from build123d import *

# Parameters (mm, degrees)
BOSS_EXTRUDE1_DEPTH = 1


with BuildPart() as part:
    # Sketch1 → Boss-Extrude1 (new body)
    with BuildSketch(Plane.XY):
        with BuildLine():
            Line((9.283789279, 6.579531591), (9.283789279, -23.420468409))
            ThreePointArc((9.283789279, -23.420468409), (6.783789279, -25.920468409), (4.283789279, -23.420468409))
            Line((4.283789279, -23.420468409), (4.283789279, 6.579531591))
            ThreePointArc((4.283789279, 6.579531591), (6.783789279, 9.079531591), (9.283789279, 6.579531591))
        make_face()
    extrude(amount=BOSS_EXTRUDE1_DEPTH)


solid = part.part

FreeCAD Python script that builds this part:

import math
import FreeCAD as App
import Part
import Sketcher
from FreeCAD import Vector

doc = App.newDocument("Part")
body = doc.addObject("PartDesign::Body", "Body")

sketch1 = doc.addObject("Sketcher::SketchObject", "Sketch")
body.addObject(sketch1)
sketch1.AttachmentSupport = (doc.XY_Plane, [""])
sketch1.MapMode = "FlatFace"
sketch1.addGeometry([
    Part.LineSegment(Vector(9.283789, -23.420468, 0), Vector(9.283789, 6.579532, 0)),
    Part.ArcOfCircle(Part.Circle(Vector(6.783789, 6.579532, 0), Vector(0, 0, 1), 2.5), math.radians(0), math.radians(180)),
    Part.LineSegment(Vector(4.283789, 6.579532, 0), Vector(4.283789, -23.420468, 0)),
    Part.ArcOfCircle(Part.Circle(Vector(6.783789, -23.420468, 0), Vector(0, 0, 1), 2.5), math.radians(180), math.radians(360)),
], False)
sketch1.addConstraint([
    Sketcher.Constraint("Tangent", 0, 2, 1, 1),
    Sketcher.Constraint("Tangent", 1, 2, 2, 1),
    Sketcher.Constraint("Tangent", 2, 2, 3, 1),
    Sketcher.Constraint("Tangent", 3, 2, 0, 1),
    Sketcher.Constraint("Vertical", 0),
    Sketcher.Constraint("Vertical", 2),
    Sketcher.Constraint("Radius", 1, 2.5),
    Sketcher.Constraint("DistanceY", 0, 1, 0, 2, 30.0),
    Sketcher.Constraint("DistanceX", -1, 1, 1, 3, 6.783789),
    Sketcher.Constraint("DistanceY", -1, 1, 1, 3, 6.579532),
])
pad1 = doc.addObject("PartDesign::Pad", "Pad")
body.addObject(pad1)
pad1.Profile = sketch1
pad1.Length = 1

doc.recompute()
